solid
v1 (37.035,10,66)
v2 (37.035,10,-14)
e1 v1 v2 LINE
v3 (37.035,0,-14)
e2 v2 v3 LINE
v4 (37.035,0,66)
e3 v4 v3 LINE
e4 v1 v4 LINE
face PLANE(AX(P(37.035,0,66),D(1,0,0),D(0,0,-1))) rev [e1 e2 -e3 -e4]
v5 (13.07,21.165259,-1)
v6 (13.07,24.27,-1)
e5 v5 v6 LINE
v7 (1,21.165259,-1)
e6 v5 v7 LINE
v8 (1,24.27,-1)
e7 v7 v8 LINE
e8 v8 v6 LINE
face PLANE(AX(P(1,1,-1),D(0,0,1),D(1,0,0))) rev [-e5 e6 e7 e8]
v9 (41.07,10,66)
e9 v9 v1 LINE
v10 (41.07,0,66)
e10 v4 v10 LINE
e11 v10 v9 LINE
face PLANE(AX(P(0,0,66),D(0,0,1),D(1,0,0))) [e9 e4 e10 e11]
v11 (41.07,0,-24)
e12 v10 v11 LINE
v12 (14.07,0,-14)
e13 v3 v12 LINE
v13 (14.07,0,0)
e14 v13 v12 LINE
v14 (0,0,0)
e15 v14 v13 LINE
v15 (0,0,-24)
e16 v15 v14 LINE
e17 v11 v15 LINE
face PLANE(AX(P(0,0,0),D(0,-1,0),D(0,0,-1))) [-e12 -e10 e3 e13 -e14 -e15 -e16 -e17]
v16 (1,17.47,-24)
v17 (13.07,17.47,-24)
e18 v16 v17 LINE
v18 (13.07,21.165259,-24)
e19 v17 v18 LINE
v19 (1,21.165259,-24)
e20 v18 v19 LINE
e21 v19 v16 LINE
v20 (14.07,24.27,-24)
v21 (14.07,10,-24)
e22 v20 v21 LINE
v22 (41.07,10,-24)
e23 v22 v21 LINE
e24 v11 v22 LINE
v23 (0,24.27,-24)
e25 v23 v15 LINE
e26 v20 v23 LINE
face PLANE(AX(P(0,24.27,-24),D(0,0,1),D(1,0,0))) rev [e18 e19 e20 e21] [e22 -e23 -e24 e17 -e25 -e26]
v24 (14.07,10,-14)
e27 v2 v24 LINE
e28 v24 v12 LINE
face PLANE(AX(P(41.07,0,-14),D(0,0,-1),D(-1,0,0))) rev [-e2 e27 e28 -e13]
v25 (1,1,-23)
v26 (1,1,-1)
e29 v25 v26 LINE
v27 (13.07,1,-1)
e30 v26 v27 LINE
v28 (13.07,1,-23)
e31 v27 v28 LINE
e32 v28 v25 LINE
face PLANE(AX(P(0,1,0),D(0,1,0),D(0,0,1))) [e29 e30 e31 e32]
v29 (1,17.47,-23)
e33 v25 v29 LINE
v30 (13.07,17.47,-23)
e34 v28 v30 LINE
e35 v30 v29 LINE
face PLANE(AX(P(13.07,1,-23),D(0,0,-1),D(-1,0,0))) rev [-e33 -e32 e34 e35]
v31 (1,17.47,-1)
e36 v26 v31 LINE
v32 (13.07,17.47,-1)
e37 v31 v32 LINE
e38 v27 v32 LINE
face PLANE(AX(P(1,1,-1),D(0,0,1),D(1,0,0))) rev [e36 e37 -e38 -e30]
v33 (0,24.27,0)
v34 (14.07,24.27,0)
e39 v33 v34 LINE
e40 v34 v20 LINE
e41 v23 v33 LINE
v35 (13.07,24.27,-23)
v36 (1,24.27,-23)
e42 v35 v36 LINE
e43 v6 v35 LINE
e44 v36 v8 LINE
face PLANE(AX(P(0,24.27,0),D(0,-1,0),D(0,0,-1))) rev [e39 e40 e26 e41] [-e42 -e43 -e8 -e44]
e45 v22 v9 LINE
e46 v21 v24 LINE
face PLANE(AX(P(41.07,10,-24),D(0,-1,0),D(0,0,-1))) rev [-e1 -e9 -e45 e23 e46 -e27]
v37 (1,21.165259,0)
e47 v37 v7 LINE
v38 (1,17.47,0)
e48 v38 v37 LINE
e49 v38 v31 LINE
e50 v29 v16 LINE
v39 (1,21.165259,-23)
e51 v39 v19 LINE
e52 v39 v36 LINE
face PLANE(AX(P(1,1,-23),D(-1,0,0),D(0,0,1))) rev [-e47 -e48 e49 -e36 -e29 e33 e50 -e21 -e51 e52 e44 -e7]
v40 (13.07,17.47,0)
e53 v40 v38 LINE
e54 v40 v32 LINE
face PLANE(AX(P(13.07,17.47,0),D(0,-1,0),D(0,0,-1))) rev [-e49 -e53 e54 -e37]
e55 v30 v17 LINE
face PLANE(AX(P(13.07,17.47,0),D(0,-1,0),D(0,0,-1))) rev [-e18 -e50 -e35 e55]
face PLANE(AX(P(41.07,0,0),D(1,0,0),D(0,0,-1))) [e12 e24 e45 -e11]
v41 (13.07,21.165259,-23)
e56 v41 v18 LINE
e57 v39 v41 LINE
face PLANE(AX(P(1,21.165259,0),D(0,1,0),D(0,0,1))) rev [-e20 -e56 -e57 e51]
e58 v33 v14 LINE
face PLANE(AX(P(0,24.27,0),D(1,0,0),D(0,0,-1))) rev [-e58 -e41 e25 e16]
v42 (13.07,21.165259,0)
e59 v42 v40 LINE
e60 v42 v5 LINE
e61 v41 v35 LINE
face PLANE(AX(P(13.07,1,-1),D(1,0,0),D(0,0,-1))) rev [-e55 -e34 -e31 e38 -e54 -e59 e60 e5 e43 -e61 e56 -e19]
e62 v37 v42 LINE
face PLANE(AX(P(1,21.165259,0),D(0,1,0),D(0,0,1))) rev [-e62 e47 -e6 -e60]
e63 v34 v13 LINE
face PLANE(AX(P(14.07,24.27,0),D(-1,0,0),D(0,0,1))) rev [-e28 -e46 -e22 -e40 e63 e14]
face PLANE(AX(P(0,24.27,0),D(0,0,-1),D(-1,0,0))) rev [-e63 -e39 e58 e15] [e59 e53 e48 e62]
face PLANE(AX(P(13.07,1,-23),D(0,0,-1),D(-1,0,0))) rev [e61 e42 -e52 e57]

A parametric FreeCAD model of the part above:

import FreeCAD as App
import Part
import Sketcher

V = App.Vector

doc = App.newDocument("Part")
body = doc.addObject("PartDesign::Body", "Body")

sketch1 = body.newObject("Sketcher::SketchObject", "Sketch")
sketch1.AttachmentSupport = (doc.getObject("XZ_Plane"), [""])
sketch1.MapMode = "FlatFace"
sketch1.addGeometry(Part.LineSegment(V(0, -24, 0), V(0, 0, 0)), False)
sketch1.addGeometry(Part.LineSegment(V(0, 0, 0), V(14, 0, 0)), False)
sketch1.addGeometry(Part.LineSegment(V(14, 0, 0), V(14, -24, 0)), False)
sketch1.addGeometry(Part.LineSegment(V(14, -24, 0), V(0, -24, 0)), False)
sketch1.addConstraint(Sketcher.Constraint("Coincident", 0, 2, 1, 1))
sketch1.addConstraint(Sketcher.Constraint("Coincident", 1, 2, 2, 1))
sketch1.addConstraint(Sketcher.Constraint("Coincident", 2, 2, 3, 1))
sketch1.addConstraint(Sketcher.Constraint("Coincident", 3, 2, 0, 1))
sketch1.addConstraint(Sketcher.Constraint("Vertical", 0))
sketch1.addConstraint(Sketcher.Constraint("Horizontal", 1))
sketch1.addConstraint(Sketcher.Constraint("Vertical", 2))
sketch1.addConstraint(Sketcher.Constraint("Horizontal", 3))
sketch1.addConstraint(Sketcher.Constraint("Coincident", 0, 2, -1, 1))
sketch1.addConstraint(Sketcher.Constraint("DistanceY", 0, 1, 0, 2, 24.0))
sketch1.addConstraint(Sketcher.Constraint("DistanceX", 1, 1, 1, 2, 14.07))
pad1 = body.newObject("PartDesign::Pad", "Pad")
pad1.Profile = sketch1
pad1.Length = 24.27
pad1.Reversed = True

sketch2 = body.newObject("Sketcher::SketchObject", "Sketch001")
sketch2.AttachmentSupport = (doc.getObject("XZ_Plane"), [""])
sketch2.MapMode = "FlatFace"
sketch2.AttachmentOffset = App.Placement(V(0, 0, -24.27), App.Rotation())
sketch2.addGeometry(Part.LineSegment(V(1, -23, 0), V(1, -1, 0)), False)
sketch2.addGeometry(Part.LineSegment(V(1, -1, 0), V(13, -1, 0)), False)
sketch2.addGeometry(Part.LineSegment(V(13, -1, 0), V(13, -23, 0)), False)
sketch2.addGeometry(Part.LineSegment(V(13, -23, 0), V(1, -23, 0)), False)
sketch2.addConstraint(Sketcher.Constraint("Coincident", 0, 2, 1, 1))
sketch2.addConstraint(Sketcher.Constraint("Coincident", 1, 2, 2, 1))
sketch2.addConstraint(Sketcher.Constraint("Coincident", 2, 2, 3, 1))
sketch2.addConstraint(Sketcher.Constraint("Coincident", 3, 2, 0, 1))
sketch2.addConstraint(Sketcher.Constraint("Vertical", 0))
sketch2.addConstraint(Sketcher.Constraint("Horizontal", 1))
sketch2.addConstraint(Sketcher.Constraint("Vertical", 2))
sketch2.addConstraint(Sketcher.Constraint("Horizontal", 3))
sketch2.addConstraint(Sketcher.Constraint("DistanceY", 0, 1, 0, 2, 22.0))
sketch2.addConstraint(Sketcher.Constraint("DistanceX", -1, 1, 0, 2, 1.0))
sketch2.addConstraint(Sketcher.Constraint("DistanceY", 0, 2, -1, 1, 1.0))
sketch2.addConstraint(Sketcher.Constraint("DistanceX", 1, 1, 1, 2, 12.07))
pocket1 = body.newObject("PartDesign::Pocket", "Pocket")
pocket1.Profile = sketch2
pocket1.Length = 23.27
pocket1.Reversed = True

sketch3 = body.newObject("Sketcher::SketchObject", "Sketch002")
sketch3.AttachmentSupport = (doc.getObject("XY_Plane"), [""])
sketch3.MapMode = "FlatFace"
sketch3.AttachmentOffset = App.Placement(V(0, 0, -24), App.Rotation())
sketch3.addGeometry(Part.LineSegment(V(13.1, 21.2, 0), V(13.1, 17.5, 0)), False)
sketch3.addGeometry(Part.LineSegment(V(13.1, 17.5, 0), V(1, 17.5, 0)), False)
sketch3.addGeometry(Part.LineSegment(V(1, 17.5, 0), V(1, 21.2, 0)), False)
sketch3.addGeometry(Part.LineSegment(V(1, 21.2, 0), V(13.1, 21.2, 0)), False)
sketch3.addConstraint(Sketcher.Constraint("Coincident", 0, 2, 1, 1))
sketch3.addConstraint(Sketcher.Constraint("Coincident", 1, 2, 2, 1))
sketch3.addConstraint(Sketcher.Constraint("Coincident", 2, 2, 3, 1))
sketch3.addConstraint(Sketcher.Constraint("Coincident", 3, 2, 0, 1))
sketch3.addConstraint(Sketcher.Constraint("Vertical", 0))
sketch3.addConstraint(Sketcher.Constraint("Horizontal", 1))
sketch3.addConstraint(Sketcher.Constraint("Vertical", 2))
sketch3.addConstraint(Sketcher.Constraint("Horizontal", 3))
sketch3.addConstraint(Sketcher.Constraint("DistanceX", -1, 1, 1, 2, 1.0))
sketch3.addConstraint(Sketcher.Constraint("DistanceX", 1, 2, 1, 1, 12.07))
sketch3.addConstraint(Sketcher.Constraint("DistanceY", -1, 1, 0, 2, 17.47))
sketch3.addConstraint(Sketcher.Constraint("DistanceY", 0, 2, 0, 1, 3.695259))
pocket2 = body.newObject("PartDesign::Pocket", "Pocket001")
pocket2.Profile = sketch3
pocket2.Type = "ThroughAll"
pocket2.Midplane = True

sketch4 = body.newObject("Sketcher::SketchObject", "Sketch003")
sketch4.AttachmentSupport = (doc.getObject("YZ_Plane"), [""])
sketch4.MapMode = "FlatFace"
sketch4.AttachmentOffset = App.Placement(V(0, 0, 14.07), App.Rotation())
sketch4.addGeometry(Part.LineSegment(V(10, -14, 0), V(0, -14, 0)), False)
sketch4.addGeometry(Part.LineSegment(V(0, -14, 0), V(0, -24, 0)), False)
sketch4.addGeometry(Part.LineSegment(V(0, -24, 0), V(10, -24, 0)), False)
sketch4.addGeometry(Part.LineSegment(V(10, -24, 0), V(10, -14, 0)), False)
sketch4.addConstraint(Sketcher.Constraint("Coincident", 0, 2, 1, 1))
sketch4.addConstraint(Sketcher.Constraint("Coincident", 1, 2, 2, 1))
sketch4.addConstraint(Sketcher.Constraint("Coincident", 2, 2, 3, 1))
sketch4.addConstraint(Sketcher.Constraint("Coincident", 3, 2, 0, 1))
sketch4.addConstraint(Sketcher.Constraint("Horizontal", 0))
sketch4.addConstraint(Sketcher.Constraint("Vertical", 1))
sketch4.addConstraint(Sketcher.Constraint("Horizontal", 2))
sketch4.addConstraint(Sketcher.Constraint("Vertical", 3))
sketch4.addConstraint(Sketcher.Constraint("PointOnObject", 0, 2, -2))
sketch4.addConstraint(Sketcher.Constraint("Equal", 2, 1))
sketch4.addConstraint(Sketcher.Constraint("DistanceX", 0, 2, 0, 1, 10.0))
sketch4.addConstraint(Sketcher.Constraint("DistanceY", 0, 2, -1, 1, 14.0))
pad2 = body.newObject("PartDesign::Pad", "Pad001")
pad2.Profile = sketch4
pad2.Length = 27

sketch5 = body.newObject("Sketcher::SketchObject", "Sketch004")
sketch5.AttachmentSupport = (doc.getObject("XY_Plane"), [""])
sketch5.MapMode = "FlatFace"
sketch5.AttachmentOffset = App.Placement(V(0, 0, -14), App.Rotation())
sketch5.addGeometry(Part.LineSegment(V(37, 10, 0), V(37, 0, 0)), False)
sketch5.addGeometry(Part.LineSegment(V(37, 0, 0), V(41.1, 0, 0)), False)
sketch5.addGeometry(Part.LineSegment(V(41.1, 0, 0), V(41.1, 10, 0)), False)
sketch5.addGeometry(Part.LineSegment(V(41.1, 10, 0), V(37, 10, 0)), False)
sketch5.addConstraint(Sketcher.Constraint("Coincident", 0, 2, 1, 1))
sketch5.addConstraint(Sketcher.Constraint("Coincident", 1, 2, 2, 1))
sketch5.addConstraint(Sketcher.Constraint("Coincident", 2, 2, 3, 1))
sketch5.addConstraint(Sketcher.Constraint("Coincident", 3, 2, 0, 1))
sketch5.addConstraint(Sketcher.Constraint("Vertical", 0))
sketch5.addConstraint(Sketcher.Constraint("Horizontal", 1))
sketch5.addConstraint(Sketcher.Constraint("Vertical", 2))
sketch5.addConstraint(Sketcher.Constraint("Horizontal", 3))
sketch5.addConstraint(Sketcher.Constraint("PointOnObject", 0, 2, -1))
sketch5.addConstraint(Sketcher.Constraint("DistanceY", 0, 2, 0, 1, 10.0))
sketch5.addConstraint(Sketcher.Constraint("DistanceX", 1, 1, 1, 2, 4.035))
sketch5.addConstraint(Sketcher.Constraint("DistanceX", -1, 1, 1, 2, 41.07))
pad3 = body.newObject("PartDesign::Pad", "Pad002")
pad3.Profile = sketch5
pad3.Length = 80

doc.recompute()
